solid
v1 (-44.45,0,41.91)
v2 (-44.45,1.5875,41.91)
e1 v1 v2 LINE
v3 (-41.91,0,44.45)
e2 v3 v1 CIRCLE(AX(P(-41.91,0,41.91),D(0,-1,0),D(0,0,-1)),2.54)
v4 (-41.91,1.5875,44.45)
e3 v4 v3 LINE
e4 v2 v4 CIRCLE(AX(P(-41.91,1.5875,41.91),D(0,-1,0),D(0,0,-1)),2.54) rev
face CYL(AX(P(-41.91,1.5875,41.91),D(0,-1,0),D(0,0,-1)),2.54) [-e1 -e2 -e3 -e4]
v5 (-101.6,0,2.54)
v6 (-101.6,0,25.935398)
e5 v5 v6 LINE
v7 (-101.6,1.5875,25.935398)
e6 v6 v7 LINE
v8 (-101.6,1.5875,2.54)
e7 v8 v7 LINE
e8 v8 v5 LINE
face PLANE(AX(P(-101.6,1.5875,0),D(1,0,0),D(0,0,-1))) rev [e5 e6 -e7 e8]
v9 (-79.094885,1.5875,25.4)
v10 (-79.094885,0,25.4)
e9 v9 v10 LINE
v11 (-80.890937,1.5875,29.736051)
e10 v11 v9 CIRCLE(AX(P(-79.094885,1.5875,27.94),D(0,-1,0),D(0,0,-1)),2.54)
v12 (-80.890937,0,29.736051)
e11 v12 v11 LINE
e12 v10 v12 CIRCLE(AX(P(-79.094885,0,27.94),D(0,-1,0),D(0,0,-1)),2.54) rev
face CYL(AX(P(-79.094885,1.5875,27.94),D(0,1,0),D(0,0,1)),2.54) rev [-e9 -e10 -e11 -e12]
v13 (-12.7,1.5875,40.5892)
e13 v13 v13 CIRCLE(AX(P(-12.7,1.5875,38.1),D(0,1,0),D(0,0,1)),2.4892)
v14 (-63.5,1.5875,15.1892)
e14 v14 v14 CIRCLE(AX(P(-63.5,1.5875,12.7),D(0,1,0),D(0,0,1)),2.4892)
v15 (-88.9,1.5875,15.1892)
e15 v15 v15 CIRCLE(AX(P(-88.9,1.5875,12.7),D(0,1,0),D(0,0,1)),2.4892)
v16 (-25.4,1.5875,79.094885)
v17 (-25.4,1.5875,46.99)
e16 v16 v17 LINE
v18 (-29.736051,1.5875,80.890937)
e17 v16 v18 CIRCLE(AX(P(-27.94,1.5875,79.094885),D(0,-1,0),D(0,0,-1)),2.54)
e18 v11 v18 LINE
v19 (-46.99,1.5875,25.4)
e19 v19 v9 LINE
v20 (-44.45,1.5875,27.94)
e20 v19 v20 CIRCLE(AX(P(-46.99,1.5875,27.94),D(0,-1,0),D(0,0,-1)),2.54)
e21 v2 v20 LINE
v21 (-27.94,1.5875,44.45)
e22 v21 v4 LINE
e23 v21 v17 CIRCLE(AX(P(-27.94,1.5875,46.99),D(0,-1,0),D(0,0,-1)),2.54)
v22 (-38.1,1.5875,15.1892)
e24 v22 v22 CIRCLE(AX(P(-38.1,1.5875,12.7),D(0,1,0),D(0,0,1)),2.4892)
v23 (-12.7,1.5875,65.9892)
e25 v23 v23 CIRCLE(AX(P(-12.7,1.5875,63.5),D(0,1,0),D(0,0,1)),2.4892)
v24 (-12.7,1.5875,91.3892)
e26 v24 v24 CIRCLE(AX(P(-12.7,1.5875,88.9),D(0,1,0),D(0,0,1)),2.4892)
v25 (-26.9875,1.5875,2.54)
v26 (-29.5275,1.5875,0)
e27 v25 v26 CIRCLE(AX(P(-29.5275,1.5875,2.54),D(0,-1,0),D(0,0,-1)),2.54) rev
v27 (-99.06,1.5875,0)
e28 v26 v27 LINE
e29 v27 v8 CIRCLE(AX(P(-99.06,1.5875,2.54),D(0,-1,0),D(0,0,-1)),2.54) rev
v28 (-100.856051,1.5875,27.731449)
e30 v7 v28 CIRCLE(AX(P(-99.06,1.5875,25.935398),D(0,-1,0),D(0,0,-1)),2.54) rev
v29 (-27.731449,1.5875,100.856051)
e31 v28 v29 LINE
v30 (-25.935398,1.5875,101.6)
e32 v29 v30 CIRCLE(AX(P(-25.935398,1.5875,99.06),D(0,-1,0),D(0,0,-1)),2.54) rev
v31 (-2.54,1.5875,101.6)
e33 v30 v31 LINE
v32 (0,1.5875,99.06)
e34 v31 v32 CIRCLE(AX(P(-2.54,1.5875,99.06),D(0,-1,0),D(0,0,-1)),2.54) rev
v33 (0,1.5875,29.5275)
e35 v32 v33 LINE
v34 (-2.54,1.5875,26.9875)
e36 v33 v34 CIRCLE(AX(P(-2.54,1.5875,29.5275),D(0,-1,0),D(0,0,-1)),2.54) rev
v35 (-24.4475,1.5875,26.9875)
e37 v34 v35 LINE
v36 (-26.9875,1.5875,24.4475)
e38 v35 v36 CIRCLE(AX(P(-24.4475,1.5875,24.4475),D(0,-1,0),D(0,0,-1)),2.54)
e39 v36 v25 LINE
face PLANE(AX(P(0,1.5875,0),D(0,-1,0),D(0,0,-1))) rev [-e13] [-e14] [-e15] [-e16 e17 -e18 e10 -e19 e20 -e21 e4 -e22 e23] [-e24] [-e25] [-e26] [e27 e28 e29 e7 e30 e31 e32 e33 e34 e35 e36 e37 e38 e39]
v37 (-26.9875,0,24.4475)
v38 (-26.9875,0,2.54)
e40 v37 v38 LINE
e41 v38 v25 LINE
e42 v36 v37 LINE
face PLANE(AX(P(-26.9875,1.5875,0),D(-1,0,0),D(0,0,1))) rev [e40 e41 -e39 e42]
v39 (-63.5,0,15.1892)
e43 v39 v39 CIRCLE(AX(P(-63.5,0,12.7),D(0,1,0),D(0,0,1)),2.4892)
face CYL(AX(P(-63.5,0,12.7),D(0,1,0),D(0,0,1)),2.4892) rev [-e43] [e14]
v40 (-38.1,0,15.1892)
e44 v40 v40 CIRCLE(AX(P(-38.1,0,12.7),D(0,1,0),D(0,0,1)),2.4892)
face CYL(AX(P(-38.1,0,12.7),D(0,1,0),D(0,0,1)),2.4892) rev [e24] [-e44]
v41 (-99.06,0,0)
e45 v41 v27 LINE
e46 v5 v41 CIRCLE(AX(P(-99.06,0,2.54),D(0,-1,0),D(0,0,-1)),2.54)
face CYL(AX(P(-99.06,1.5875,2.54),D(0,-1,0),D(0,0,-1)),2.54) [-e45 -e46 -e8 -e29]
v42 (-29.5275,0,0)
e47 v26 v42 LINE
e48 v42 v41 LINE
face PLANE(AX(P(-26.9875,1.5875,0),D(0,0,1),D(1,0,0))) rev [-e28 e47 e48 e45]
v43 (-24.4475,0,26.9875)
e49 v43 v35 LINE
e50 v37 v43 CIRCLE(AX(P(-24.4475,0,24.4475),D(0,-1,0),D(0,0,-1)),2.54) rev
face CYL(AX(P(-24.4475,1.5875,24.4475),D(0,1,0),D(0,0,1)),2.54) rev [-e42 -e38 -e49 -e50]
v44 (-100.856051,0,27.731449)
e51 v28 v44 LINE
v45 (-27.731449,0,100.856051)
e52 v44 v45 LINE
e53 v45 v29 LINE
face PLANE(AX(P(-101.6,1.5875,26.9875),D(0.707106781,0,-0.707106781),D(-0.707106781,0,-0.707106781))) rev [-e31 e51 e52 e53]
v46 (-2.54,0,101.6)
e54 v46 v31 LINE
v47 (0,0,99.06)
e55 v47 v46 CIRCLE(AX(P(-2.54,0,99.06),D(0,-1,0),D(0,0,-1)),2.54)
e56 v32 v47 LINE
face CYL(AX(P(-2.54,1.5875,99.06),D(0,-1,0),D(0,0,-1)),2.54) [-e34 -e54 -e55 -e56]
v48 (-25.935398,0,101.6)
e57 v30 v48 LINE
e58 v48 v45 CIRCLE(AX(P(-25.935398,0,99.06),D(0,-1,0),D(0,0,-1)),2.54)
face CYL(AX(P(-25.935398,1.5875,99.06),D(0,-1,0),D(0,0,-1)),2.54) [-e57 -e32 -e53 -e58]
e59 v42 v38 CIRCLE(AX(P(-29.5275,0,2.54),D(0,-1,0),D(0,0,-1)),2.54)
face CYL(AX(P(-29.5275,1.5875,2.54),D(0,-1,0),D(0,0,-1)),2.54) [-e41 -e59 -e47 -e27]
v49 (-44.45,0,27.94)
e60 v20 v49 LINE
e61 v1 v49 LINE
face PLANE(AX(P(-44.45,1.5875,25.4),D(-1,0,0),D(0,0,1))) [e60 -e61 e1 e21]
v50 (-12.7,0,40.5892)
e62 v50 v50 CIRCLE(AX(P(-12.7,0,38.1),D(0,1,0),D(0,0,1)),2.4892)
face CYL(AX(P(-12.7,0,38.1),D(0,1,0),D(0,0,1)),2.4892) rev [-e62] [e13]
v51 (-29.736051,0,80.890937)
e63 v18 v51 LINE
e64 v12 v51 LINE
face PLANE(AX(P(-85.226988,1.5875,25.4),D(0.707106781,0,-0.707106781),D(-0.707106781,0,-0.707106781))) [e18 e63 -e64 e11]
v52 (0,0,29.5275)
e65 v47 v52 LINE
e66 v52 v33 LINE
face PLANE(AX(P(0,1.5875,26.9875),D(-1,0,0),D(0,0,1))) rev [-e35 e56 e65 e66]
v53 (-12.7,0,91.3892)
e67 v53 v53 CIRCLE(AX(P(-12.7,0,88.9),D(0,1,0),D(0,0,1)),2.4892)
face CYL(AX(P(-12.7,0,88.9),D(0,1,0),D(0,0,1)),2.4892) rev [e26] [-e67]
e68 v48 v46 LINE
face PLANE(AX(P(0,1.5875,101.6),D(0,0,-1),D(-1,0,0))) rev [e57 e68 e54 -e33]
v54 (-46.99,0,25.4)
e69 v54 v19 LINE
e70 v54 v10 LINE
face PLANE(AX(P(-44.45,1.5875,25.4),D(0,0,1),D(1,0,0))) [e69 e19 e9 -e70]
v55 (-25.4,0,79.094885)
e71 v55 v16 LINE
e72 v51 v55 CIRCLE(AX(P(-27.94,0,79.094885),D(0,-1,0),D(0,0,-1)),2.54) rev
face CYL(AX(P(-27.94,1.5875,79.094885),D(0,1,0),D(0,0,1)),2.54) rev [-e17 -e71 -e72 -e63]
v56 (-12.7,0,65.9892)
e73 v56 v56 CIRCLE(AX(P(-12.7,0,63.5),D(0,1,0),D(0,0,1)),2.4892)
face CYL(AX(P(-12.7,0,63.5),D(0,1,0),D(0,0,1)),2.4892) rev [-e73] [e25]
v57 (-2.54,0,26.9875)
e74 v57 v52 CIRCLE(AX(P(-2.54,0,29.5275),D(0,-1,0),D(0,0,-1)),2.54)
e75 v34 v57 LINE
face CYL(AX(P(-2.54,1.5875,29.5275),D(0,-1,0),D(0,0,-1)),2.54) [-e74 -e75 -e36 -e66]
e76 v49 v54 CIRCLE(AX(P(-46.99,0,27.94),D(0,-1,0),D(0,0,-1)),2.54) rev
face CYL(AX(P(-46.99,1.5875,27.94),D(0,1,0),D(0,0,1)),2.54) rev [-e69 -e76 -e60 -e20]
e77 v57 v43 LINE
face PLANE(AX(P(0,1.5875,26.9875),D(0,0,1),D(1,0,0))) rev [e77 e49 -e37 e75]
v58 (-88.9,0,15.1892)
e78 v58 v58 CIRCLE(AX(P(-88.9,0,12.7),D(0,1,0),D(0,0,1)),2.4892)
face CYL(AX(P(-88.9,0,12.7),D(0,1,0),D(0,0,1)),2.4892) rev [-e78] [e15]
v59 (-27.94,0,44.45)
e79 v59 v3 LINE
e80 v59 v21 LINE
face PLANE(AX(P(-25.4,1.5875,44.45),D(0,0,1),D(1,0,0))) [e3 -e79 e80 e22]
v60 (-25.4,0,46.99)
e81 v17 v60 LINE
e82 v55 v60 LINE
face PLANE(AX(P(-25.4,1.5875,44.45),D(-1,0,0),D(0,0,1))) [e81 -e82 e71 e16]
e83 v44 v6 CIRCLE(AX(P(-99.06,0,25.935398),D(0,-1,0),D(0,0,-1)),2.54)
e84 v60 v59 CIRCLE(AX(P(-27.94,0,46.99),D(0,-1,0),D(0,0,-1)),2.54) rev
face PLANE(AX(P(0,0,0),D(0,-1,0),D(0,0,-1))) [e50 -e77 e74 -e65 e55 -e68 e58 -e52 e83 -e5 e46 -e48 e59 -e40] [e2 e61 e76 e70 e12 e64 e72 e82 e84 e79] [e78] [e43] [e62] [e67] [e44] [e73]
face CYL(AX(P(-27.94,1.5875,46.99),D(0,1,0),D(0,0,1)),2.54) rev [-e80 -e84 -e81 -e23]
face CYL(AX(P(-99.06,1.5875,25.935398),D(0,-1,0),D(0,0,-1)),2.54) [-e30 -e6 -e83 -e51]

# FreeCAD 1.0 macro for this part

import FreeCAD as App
import Part
import Sketcher
from FreeCAD import Vector
Q = App.Units.Quantity


def edges_at(feature, points):
    """Names of the edges that pass closest to the given points."""
    edges = feature.Shape.Edges
    near = lambda p: min(range(len(edges)), key=lambda i: edges[i].distToShape(Part.Vertex(*p))[0])
    return sorted({f"Edge{near(p) + 1}" for p in points})


def add_polygon(sketch, points):
    """Adds a closed chain of lines whose ends are joined by coincident constraints."""
    first, n = sketch.GeometryCount, len(points)
    for a, b in zip(points, points[1:] + points[:1]):
        sketch.addGeometry(Part.LineSegment(App.Vector(*a, 0), App.Vector(*b, 0)), False)
    for i in range(n):
        sketch.addConstraint(Sketcher.Constraint("Coincident", first + i, 2, first + (i + 1) % n, 1))

doc = App.newDocument("Part")
body = doc.addObject("PartDesign::Body", "Body")

sketch1 = doc.addObject("Sketcher::SketchObject", "Sketch")
body.addObject(sketch1)
sketch1.AttachmentSupport = (doc.XZ_Plane, [""])
sketch1.MapMode = "FlatFace"
add_polygon(sketch1, [(0, 27), (-27, 27), (-27, 0), (-102, 0), (-102, 27), (-27, 102), (0, 102)])
add_polygon(sketch1, [(-25, 85), (-85, 25), (-44, 25), (-44, 44), (-25, 44)])
sketch1.addConstraint([
    Sketcher.Constraint("Horizontal", 0),
    Sketcher.Constraint("Vertical", 1),
    Sketcher.Constraint("Horizontal", 2),
    Sketcher.Constraint("Vertical", 3),
    Sketcher.Constraint("Horizontal", 5),
    Sketcher.Constraint("Vertical", 6),
    Sketcher.Constraint("Horizontal", 8),
    Sketcher.Constraint("Vertical", 9),
    Sketcher.Constraint("Horizontal", 10),
    Sketcher.Constraint("Vertical", 11),
    Sketcher.Constraint("PointOnObject", 1, 2, -1),
    Sketcher.Constraint("PointOnObject", 5, 2, -2),
    Sketcher.Constraint("Parallel", 4, 7),
    Sketcher.Constraint("Horizontal", 0, 2, 3, 2),
    Sketcher.Constraint("Vertical", 1, 2, 4, 2),
    Sketcher.Constraint("Equal", 5, 1),
    Sketcher.Constraint("Equal", 2, 6),
    Sketcher.Constraint("Equal", 10, 9),
    Sketcher.Constraint("DistanceX", 2, 2, -1, 1, Q("4 in")),
    Sketcher.Constraint("DistanceY", -1, 1, 7, 2, Q("1 in")),
    Sketcher.Constraint("DistanceX", 10, 2, -1, 1, Q("1 in")),
    Sketcher.Constraint("DistanceX", 10, 1, 10, 2, Q("0.75 in")),
    Sketcher.Constraint("DistanceX", 0, 2, 0, 1, Q("1.0625 in")),
    Sketcher.Constraint("DistanceX", 8, 1, 8, 2, 40.776988),
])
pad1 = doc.addObject("PartDesign::Pad", "Pad")
body.addObject(pad1)
pad1.Profile = sketch1
pad1.Length = Q("0.0625 in")
pad1.Reversed = True
doc.recompute()

fillet = doc.addObject("PartDesign::Fillet", "Fillet")
body.addObject(fillet)
fillet.Base = (pad1, edges_at(pad1, [
    (-26.988, 0.794, 26.988),
    (0, 0.794, 26.988),
    (0, 0.794, 101.6),
    (-26.988, 0.794, 101.6),
    (-101.6, 0.794, 26.988),
    (-101.6, 0.794, 0),
    (-26.988, 0.794, 0),
    (-44.45, 0.794, 25.4),
    (-85.227, 0.794, 25.4),
    (-25.4, 0.794, 85.227),
    (-25.4, 0.794, 44.45),
    (-44.45, 0.794, 44.45),
]))
fillet.Radius = Q("0.1 in")

sketch2 = doc.addObject("Sketcher::SketchObject", "Sketch001")
body.addObject(sketch2)
sketch2.AttachmentSupport = (doc.XZ_Plane, [""])
sketch2.MapMode = "FlatFace"
sketch2.AttachmentOffset = App.Placement(Vector(0, 0, -0.0625 * 25.4), App.Rotation())
sketch2.addGeometry([
    Part.Circle(Vector(-88.9, 12.7, 0), Vector(0, 0, 1), 2.5),
    Part.Circle(Vector(-12.7, 88.9, 0), Vector(0, 0, 1), 2.5),
], False)
sketch2.addConstraint([
    Sketcher.Constraint("Equal", 0, 1),
    Sketcher.Constraint("Diameter", 0, Q("0.196 in")),
    Sketcher.Constraint("DistanceX", 0, 3, 1, 3, Q("3 in")),
    Sketcher.Constraint("DistanceY", 0, 3, 1, 3, Q("3 in")),
    Sketcher.Constraint("DistanceX", 0, 3, -1, 1, Q("3.5 in")),
    Sketcher.Constraint("DistanceY", -1, 1, 0, 3, Q("0.5 in")),
])
pocket1 = doc.addObject("PartDesign::Pocket", "Pocket")
body.addObject(pocket1)
pocket1.Profile = sketch2
pocket1.Type = "ThroughAll"
pocket1.Reversed = True
doc.recompute()

linearpattern = doc.addObject("PartDesign::LinearPattern", "LinearPattern")
body.addObject(linearpattern)
linearpattern.Originals = [pocket1]
linearpattern.Direction = (doc.X_Axis, [""])
linearpattern.Mode = "offset"
linearpattern.Offset = Q("1 in")
linearpattern.Occurrences = 3
body.Tip = linearpattern
doc.recompute()

linearpattern2 = doc.addObject("PartDesign::LinearPattern", "LinearPattern001")
body.addObject(linearpattern2)
linearpattern2.Originals = [pocket1]
linearpattern2.Direction = (doc.Z_Axis, [""])
linearpattern2.Mode = "offset"
linearpattern2.Offset = Q("1 in")
linearpattern2.Occurrences = 3
linearpattern2.Reversed = True
body.Tip = linearpattern2

doc.recompute()
